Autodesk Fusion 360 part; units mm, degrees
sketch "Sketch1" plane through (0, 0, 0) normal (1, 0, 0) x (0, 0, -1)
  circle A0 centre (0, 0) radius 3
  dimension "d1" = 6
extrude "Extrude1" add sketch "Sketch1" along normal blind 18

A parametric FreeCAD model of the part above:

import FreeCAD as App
import Part
import Sketcher
from FreeCAD import Vector

doc = App.newDocument("Part")
body = doc.addObject("PartDesign::Body", "Body")

# Sketch on YZ plane
sketch1 = body.newObject("Sketcher::SketchObject", "Sketch")
sketch1.AttachmentSupport = (doc.getObject("YZ_Plane"), [""])
sketch1.MapMode = "FlatFace"
sketch1.addGeometry(Part.Circle(Vector(0, 0, 0), Vector(0, 0, 1), 3), False)
sketch1.addConstraint([
    Sketcher.Constraint("Coincident", 0, 3, -1, 1),
    Sketcher.Constraint("Diameter", 0, 6.0),
])
pad1 = body.newObject("PartDesign::Pad", "Pad")
pad1.Profile = sketch1
pad1.Length = 18

doc.recompute()
